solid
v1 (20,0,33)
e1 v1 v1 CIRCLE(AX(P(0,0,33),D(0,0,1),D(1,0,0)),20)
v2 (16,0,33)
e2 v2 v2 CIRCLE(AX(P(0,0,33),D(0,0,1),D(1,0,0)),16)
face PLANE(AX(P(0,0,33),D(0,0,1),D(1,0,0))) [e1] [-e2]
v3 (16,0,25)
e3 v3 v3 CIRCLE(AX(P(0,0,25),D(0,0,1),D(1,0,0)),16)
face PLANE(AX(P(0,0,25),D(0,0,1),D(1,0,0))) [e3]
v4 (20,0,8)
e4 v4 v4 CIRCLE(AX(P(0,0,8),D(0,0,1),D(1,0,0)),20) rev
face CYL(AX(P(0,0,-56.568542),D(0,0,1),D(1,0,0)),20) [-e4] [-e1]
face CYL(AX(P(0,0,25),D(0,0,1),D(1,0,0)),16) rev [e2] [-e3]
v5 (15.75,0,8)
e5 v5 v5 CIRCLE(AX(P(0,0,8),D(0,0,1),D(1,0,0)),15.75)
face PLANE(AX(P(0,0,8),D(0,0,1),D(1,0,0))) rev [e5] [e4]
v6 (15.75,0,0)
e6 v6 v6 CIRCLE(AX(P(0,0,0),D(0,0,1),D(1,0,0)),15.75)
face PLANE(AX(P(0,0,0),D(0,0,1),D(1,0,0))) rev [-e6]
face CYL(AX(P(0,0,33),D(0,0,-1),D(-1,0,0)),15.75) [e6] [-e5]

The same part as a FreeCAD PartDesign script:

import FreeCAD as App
import Part
import Sketcher

doc = App.newDocument("Part")
body = doc.addObject("PartDesign::Body", "Body")

sketch1 = body.newObject("Sketcher::SketchObject", "Sketch")
sketch1.AttachmentSupport = (doc.getObject("XY_Plane"), [""])
sketch1.MapMode = "FlatFace"
sketch1.addGeometry(Part.Circle(App.Vector(0, 0, 0), App.Vector(0, 0, 1), 16), False)
sketch1.addConstraint([
    Sketcher.Constraint("Coincident", 0, 3, -1, 1),
    Sketcher.Constraint("Diameter", 0, 31.5),
])
pad1 = body.newObject("PartDesign::Pad", "Pad")
pad1.Profile = sketch1
pad1.Length = 33

sketch2 = body.newObject("Sketcher::SketchObject", "Sketch001")
sketch2.AttachmentSupport = (doc.getObject("XY_Plane"), [""])
sketch2.MapMode = "FlatFace"
sketch2.AttachmentOffset = App.Placement(App.Vector(0, 0, 33), App.Rotation())
sketch2.addGeometry(Part.Circle(App.Vector(0, 0, 0), App.Vector(0, 0, 1), 20), False)
sketch2.addConstraint([
    Sketcher.Constraint("Coincident", 0, 3, -1, 1),
    Sketcher.Constraint("Diameter", 0, 40.0),
])
pad2 = body.newObject("PartDesign::Pad", "Pad001")
pad2.Profile = sketch2
pad2.Length = 25
pad2.Reversed = True

sketch3 = body.newObject("Sketcher::SketchObject", "Sketch002")
sketch3.AttachmentSupport = (doc.getObject("XY_Plane"), [""])
sketch3.MapMode = "FlatFace"
sketch3.AttachmentOffset = App.Placement(App.Vector(0, 0, 33), App.Rotation())
sketch3.addGeometry(Part.Circle(App.Vector(0, 0, 0), App.Vector(0, 0, 1), 16), False)
sketch3.addConstraint([
    Sketcher.Constraint("Coincident", 0, 3, -1, 1),
    Sketcher.Constraint("Diameter", 0, 32.0),
])
pocket1 = body.newObject("PartDesign::Pocket", "Pocket")
pocket1.Profile = sketch3
pocket1.Length = 8

doc.recompute()
